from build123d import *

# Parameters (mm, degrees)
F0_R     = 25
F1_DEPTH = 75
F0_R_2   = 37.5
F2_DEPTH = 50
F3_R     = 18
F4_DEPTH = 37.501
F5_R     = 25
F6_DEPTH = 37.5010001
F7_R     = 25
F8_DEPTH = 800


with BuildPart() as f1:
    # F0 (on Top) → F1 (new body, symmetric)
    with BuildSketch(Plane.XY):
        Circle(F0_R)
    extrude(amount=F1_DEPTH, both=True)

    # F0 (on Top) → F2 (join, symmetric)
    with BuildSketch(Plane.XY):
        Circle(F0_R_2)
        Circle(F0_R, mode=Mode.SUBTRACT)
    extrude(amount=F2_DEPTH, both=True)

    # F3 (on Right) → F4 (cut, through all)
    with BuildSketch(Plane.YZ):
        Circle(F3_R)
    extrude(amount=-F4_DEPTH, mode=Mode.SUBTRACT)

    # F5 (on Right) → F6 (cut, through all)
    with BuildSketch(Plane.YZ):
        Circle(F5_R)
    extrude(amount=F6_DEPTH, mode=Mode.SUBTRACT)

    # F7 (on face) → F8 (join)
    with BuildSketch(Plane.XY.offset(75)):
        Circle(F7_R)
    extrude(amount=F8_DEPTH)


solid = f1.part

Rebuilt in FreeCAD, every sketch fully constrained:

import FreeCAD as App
import Part
import Sketcher
from FreeCAD import Vector

doc = App.newDocument("Part")
body = doc.addObject("PartDesign::Body", "Body")

sketch1 = body.newObject("Sketcher::SketchObject", "Sketch")
sketch1.AttachmentSupport = (doc.getObject("XY_Plane"), [""])
sketch1.MapMode = "FlatFace"
sketch1.addGeometry(Part.Circle(Vector(0, 0, 0), Vector(0, 0, 1), 25), False)
sketch1.addConstraint([
    Sketcher.Constraint("Coincident", 0, 3, -1, 1),
    Sketcher.Constraint("Diameter", 0, 50.0),
])
pad1 = body.newObject("PartDesign::Pad", "Pad")
pad1.Profile = sketch1
pad1.Length = 150
pad1.Midplane = True

sketch2 = body.newObject("Sketcher::SketchObject", "Sketch001")
sketch2.AttachmentSupport = (doc.getObject("XY_Plane"), [""])
sketch2.MapMode = "FlatFace"
sketch2.addGeometry([
    Part.Circle(Vector(0, 0, 0), Vector(0, 0, 1), 38),
    Part.Circle(Vector(0, 0, 0), Vector(0, 0, 1), 25),
], False)
sketch2.addConstraint([
    Sketcher.Constraint("Coincident", 0, 3, -1, 1),
    Sketcher.Constraint("Coincident", 1, 3, -1, 1),
    Sketcher.Constraint("Diameter", 0, 75.0),
    Sketcher.Constraint("Diameter", 1, 50.0),
])
pad2 = body.newObject("PartDesign::Pad", "Pad001")
pad2.Profile = sketch2
pad2.Length = 100
pad2.Midplane = True

sketch3 = body.newObject("Sketcher::SketchObject", "Sketch002")
sketch3.AttachmentSupport = (doc.getObject("YZ_Plane"), [""])
sketch3.MapMode = "FlatFace"
sketch3.addGeometry(Part.Circle(Vector(0, 0, 0), Vector(0, 0, 1), 18), False)
sketch3.addConstraint([
    Sketcher.Constraint("Coincident", 0, 3, -1, 1),
    Sketcher.Constraint("Diameter", 0, 36.0),
])
pocket1 = body.newObject("PartDesign::Pocket", "Pocket")
pocket1.Profile = sketch3
pocket1.Type = "ThroughAll"

sketch4 = body.newObject("Sketcher::SketchObject", "Sketch003")
sketch4.AttachmentSupport = (doc.getObject("YZ_Plane"), [""])
sketch4.MapMode = "FlatFace"
sketch4.addGeometry(Part.Circle(Vector(0, 0, 0), Vector(0, 0, 1), 25), False)
sketch4.addConstraint([
    Sketcher.Constraint("Coincident", 0, 3, -1, 1),
    Sketcher.Constraint("Diameter", 0, 50.0),
])
pocket2 = body.newObject("PartDesign::Pocket", "Pocket001")
pocket2.Profile = sketch4
pocket2.Type = "ThroughAll"
pocket2.Reversed = True

sketch5 = body.newObject("Sketcher::SketchObject", "Sketch004")
sketch5.AttachmentSupport = (doc.getObject("XY_Plane"), [""])
sketch5.MapMode = "FlatFace"
sketch5.AttachmentOffset = App.Placement(Vector(0, 0, 75), App.Rotation())
sketch5.addGeometry(Part.Circle(Vector(0, 0, 0), Vector(0, 0, 1), 25), False)
sketch5.addConstraint([
    Sketcher.Constraint("Coincident", 0, 3, -1, 1),
    Sketcher.Constraint("Diameter", 0, 50.0),
])
pad3 = body.newObject("PartDesign::Pad", "Pad002")
pad3.Profile = sketch5
pad3.Length = 800

doc.recompute()
